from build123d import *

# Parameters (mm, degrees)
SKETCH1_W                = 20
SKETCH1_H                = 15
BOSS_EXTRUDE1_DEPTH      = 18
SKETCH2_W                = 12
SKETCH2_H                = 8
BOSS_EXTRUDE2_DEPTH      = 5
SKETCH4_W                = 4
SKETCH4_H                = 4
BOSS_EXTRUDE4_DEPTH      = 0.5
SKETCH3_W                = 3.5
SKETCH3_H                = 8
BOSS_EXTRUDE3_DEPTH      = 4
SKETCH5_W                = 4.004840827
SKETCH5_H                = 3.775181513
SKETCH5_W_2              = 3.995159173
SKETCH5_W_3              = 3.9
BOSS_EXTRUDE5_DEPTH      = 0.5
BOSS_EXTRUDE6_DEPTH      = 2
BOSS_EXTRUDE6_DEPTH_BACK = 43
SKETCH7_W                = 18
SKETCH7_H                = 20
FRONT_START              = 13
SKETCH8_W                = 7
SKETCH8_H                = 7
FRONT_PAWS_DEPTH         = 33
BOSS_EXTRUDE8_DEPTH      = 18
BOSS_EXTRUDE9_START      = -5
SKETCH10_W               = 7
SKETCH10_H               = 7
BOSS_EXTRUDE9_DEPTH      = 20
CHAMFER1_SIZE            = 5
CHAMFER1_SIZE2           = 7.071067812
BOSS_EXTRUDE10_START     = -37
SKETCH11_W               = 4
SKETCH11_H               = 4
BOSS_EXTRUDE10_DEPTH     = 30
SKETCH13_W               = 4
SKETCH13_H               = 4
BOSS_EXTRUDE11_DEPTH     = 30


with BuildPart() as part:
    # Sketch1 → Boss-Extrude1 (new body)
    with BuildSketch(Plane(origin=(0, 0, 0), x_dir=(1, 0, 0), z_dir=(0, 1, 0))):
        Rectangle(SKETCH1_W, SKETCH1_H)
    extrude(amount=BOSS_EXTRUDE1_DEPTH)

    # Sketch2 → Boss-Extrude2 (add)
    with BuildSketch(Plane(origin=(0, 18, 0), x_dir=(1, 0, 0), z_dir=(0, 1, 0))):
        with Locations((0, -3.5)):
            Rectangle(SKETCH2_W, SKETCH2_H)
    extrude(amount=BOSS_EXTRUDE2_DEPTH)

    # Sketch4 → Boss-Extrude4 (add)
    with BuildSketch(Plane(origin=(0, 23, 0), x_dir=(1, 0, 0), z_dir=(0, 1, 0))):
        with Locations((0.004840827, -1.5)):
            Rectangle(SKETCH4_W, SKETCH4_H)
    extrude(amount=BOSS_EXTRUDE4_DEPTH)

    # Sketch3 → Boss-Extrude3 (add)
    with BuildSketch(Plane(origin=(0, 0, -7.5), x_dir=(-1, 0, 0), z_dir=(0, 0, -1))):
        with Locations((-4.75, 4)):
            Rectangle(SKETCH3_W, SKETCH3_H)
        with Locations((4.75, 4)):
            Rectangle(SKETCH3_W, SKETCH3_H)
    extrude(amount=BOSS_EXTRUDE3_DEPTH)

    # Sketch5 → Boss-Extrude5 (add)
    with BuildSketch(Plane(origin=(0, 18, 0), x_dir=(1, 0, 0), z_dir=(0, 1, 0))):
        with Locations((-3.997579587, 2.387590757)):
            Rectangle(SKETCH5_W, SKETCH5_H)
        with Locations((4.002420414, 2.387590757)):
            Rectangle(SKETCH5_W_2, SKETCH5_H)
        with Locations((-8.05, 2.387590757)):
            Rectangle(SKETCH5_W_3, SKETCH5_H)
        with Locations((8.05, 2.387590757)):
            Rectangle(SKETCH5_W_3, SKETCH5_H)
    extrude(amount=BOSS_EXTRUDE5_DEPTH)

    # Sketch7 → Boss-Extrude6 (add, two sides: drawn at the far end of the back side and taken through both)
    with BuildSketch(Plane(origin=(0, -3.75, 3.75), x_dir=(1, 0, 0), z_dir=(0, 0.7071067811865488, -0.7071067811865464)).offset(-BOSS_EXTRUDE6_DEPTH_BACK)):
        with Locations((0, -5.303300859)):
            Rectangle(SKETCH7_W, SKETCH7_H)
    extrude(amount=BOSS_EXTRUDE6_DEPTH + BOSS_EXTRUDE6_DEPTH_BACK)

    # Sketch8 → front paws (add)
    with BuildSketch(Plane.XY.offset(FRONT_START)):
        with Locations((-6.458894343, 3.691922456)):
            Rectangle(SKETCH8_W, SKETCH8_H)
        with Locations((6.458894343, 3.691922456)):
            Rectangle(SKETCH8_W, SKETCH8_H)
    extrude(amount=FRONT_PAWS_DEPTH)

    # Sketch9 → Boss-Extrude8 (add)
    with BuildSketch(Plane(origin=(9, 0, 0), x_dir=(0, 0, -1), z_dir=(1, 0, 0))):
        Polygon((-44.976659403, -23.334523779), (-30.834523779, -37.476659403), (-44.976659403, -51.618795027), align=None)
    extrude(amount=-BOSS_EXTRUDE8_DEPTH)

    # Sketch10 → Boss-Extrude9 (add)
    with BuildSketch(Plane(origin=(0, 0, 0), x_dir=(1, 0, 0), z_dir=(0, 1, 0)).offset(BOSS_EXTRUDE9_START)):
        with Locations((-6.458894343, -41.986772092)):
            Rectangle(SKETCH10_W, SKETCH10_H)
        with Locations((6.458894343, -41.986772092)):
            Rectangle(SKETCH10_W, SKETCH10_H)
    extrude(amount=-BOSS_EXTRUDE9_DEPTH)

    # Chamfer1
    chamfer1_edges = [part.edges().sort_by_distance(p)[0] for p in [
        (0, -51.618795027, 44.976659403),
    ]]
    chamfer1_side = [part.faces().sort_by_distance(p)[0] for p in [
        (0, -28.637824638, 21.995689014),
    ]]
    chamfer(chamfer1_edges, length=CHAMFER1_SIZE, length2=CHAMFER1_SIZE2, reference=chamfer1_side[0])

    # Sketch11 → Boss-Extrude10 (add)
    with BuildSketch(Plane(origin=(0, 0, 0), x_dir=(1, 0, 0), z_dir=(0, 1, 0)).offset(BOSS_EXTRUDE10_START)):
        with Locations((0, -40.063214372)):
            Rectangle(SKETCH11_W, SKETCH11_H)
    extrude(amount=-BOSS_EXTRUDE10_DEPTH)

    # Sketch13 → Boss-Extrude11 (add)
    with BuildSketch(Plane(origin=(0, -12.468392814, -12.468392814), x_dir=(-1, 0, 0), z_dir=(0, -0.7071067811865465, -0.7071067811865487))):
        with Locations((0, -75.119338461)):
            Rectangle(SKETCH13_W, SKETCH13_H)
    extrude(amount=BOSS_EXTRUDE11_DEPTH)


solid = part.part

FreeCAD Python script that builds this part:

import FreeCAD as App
import Part
import Sketcher
from FreeCAD import Vector


def edges_at(feature, points):
    """Names of the edges that pass closest to the given points."""
    edges = feature.Shape.Edges
    near = lambda p: min(range(len(edges)), key=lambda i: edges[i].distToShape(Part.Vertex(*p))[0])
    return sorted({f"Edge{near(p) + 1}" for p in points})

doc = App.newDocument("Part")
body = doc.addObject("PartDesign::Body", "Body")

# Sketch on XZ plane
sketch1 = body.newObject("Sketcher::SketchObject", "Sketch")
sketch1.AttachmentSupport = (doc.getObject("XZ_Plane"), [""])
sketch1.MapMode = "FlatFace"
sketch1.addGeometry([
    Part.LineSegment(Vector(-10, -7.5, 0), Vector(-10, 7.5, 0)),
    Part.LineSegment(Vector(-10, 7.5, 0), Vector(10, 7.5, 0)),
    Part.LineSegment(Vector(10, 7.5, 0), Vector(10, -7.5, 0)),
    Part.LineSegment(Vector(10, -7.5, 0), Vector(-10, -7.5, 0)),
], False)
sketch1.addConstraint([
    Sketcher.Constraint("Coincident", 0, 2, 1, 1),
    Sketcher.Constraint("Coincident", 1, 2, 2, 1),
    Sketcher.Constraint("Coincident", 2, 2, 3, 1),
    Sketcher.Constraint("Coincident", 3, 2, 0, 1),
    Sketcher.Constraint("Vertical", 0),
    Sketcher.Constraint("Horizontal", 1),
    Sketcher.Constraint("Vertical", 2),
    Sketcher.Constraint("Horizontal", 3),
    Sketcher.Constraint("Symmetric", 0, 2, 2, 2, -1, 1),
    Sketcher.Constraint("DistanceX", 1, 1, 1, 2, 20.0),
    Sketcher.Constraint("DistanceY", 0, 1, 0, 2, 15.0),
])
pad1 = body.newObject("PartDesign::Pad", "Pad")
pad1.Profile = sketch1
pad1.Length = 18
pad1.Reversed = True

# Sketch on XZ plane
sketch2 = body.newObject("Sketcher::SketchObject", "Sketch001")
sketch2.AttachmentSupport = (doc.getObject("XZ_Plane"), [""])
sketch2.MapMode = "FlatFace"
sketch2.AttachmentOffset = App.Placement(Vector(0, 0, -18), App.Rotation())
sketch2.addGeometry([
    Part.LineSegment(Vector(-6, -0.5, 0), Vector(-6, 7.5, 0)),
    Part.LineSegment(Vector(-6, 7.5, 0), Vector(6, 7.5, 0)),
    Part.LineSegment(Vector(6, 7.5, 0), Vector(6, -0.5, 0)),
    Part.LineSegment(Vector(6, -0.5, 0), Vector(-6, -0.5, 0)),
], False)
sketch2.addConstraint([
    Sketcher.Constraint("Coincident", 0, 2, 1, 1),
    Sketcher.Constraint("Coincident", 1, 2, 2, 1),
    Sketcher.Constraint("Coincident", 2, 2, 3, 1),
    Sketcher.Constraint("Coincident", 3, 2, 0, 1),
    Sketcher.Constraint("Vertical", 0),
    Sketcher.Constraint("Horizontal", 1),
    Sketcher.Constraint("Vertical", 2),
    Sketcher.Constraint("Horizontal", 3),
    Sketcher.Constraint("DistanceX", 1, 1, 1, 2, 12.0),
    Sketcher.Constraint("DistanceY", 0, 1, 0, 2, 8.0),
    Sketcher.Constraint("DistanceX", 0, 2, -1, 1, 6.0),
    Sketcher.Constraint("DistanceY", -1, 1, 0, 2, 7.5),
])
pad2 = body.newObject("PartDesign::Pad", "Pad001")
pad2.Profile = sketch2
pad2.Length = 5
pad2.Reversed = True

# Sketch on XZ plane
sketch3 = body.newObject("Sketcher::SketchObject", "Sketch002")
sketch3.AttachmentSupport = (doc.getObject("XZ_Plane"), [""])
sketch3.MapMode = "FlatFace"
sketch3.AttachmentOffset = App.Placement(Vector(0, 0, -23), App.Rotation())
sketch3.addGeometry([
    Part.LineSegment(Vector(-1.995159, -0.5, 0), Vector(-1.995159, 3.5, 0)),
    Part.LineSegment(Vector(-1.995159, 3.5, 0), Vector(2.004841, 3.5, 0)),
    Part.LineSegment(Vector(2.004841, 3.5, 0), Vector(2.004841, -0.5, 0)),
    Part.LineSegment(Vector(2.004841, -0.5, 0), Vector(-1.995159, -0.5, 0)),
], False)
sketch3.addConstraint([
    Sketcher.Constraint("Coincident", 0, 2, 1, 1),
    Sketcher.Constraint("Coincident", 1, 2, 2, 1),
    Sketcher.Constraint("Coincident", 2, 2, 3, 1),
    Sketcher.Constraint("Coincident", 3, 2, 0, 1),
    Sketcher.Constraint("Vertical", 0),
    Sketcher.Constraint("Horizontal", 1),
    Sketcher.Constraint("Vertical", 2),
    Sketcher.Constraint("Horizontal", 3),
    Sketcher.Constraint("Equal", 3, 0),
    Sketcher.Constraint("DistanceX", 1, 1, 1, 2, 4.0),
    Sketcher.Constraint("DistanceY", -1, 1, 0, 2, 3.5),
    Sketcher.Constraint("DistanceX", 0, 2, -1, 1, 1.995159),
])
pad3 = body.newObject("PartDesign::Pad", "Pad002")
pad3.Profile = sketch3
pad3.Length = 0.5
pad3.Reversed = True

# Sketch on XY plane
sketch4 = body.newObject("Sketcher::SketchObject", "Sketch003")
sketch4.AttachmentSupport = (doc.getObject("XY_Plane"), [""])
sketch4.MapMode = "FlatFace"
sketch4.AttachmentOffset = App.Placement(Vector(0, 0, -7.5), App.Rotation())
sketch4.addGeometry([
    Part.LineSegment(Vector(6.5, 8, 0), Vector(6.5, 0, 0)),  # 0
    Part.LineSegment(Vector(6.5, 0, 0), Vector(3, 0, 0)),  # 1
    Part.LineSegment(Vector(3, 0, 0), Vector(3, 8, 0)),  # 2
    Part.LineSegment(Vector(3, 8, 0), Vector(6.5, 8, 0)),  # 3
    Part.LineSegment(Vector(-3, 8, 0), Vector(-3, 0, 0)),  # 4
    Part.LineSegment(Vector(-3, 0, 0), Vector(-6.5, 0, 0)),  # 5
    Part.LineSegment(Vector(-6.5, 0, 0), Vector(-6.5, 8, 0)),  # 6
    Part.LineSegment(Vector(-6.5, 8, 0), Vector(-3, 8, 0)),  # 7
], False)
sketch4.addConstraint([
    Sketcher.Constraint("Coincident", 0, 2, 1, 1),
    Sketcher.Constraint("Coincident", 1, 2, 2, 1),
    Sketcher.Constraint("Coincident", 2, 2, 3, 1),
    Sketcher.Constraint("Coincident", 3, 2, 0, 1),
    Sketcher.Constraint("Coincident", 4, 2, 5, 1),
    Sketcher.Constraint("Coincident", 5, 2, 6, 1),
    Sketcher.Constraint("Coincident", 6, 2, 7, 1),
    Sketcher.Constraint("Coincident", 7, 2, 4, 1),
    Sketcher.Constraint("Vertical", 0),
    Sketcher.Constraint("Horizontal", 1),
    Sketcher.Constraint("Vertical", 2),
    Sketcher.Constraint("Horizontal", 3),
    Sketcher.Constraint("Vertical", 4),
    Sketcher.Constraint("Horizontal", 5),
    Sketcher.Constraint("Vertical", 6),
    Sketcher.Constraint("Horizontal", 7),
    Sketcher.Constraint("Symmetric", 1, 2, 4, 2, -1, 1),
    Sketcher.Constraint("Symmetric", 0, 2, 5, 2, -2),
    Sketcher.Constraint("Horizontal", 3, 2, 6, 2),
    Sketcher.Constraint("DistanceY", 0, 2, 0, 1, 8.0),
    Sketcher.Constraint("DistanceX", 1, 2, 1, 1, 3.5),
    Sketcher.Constraint("DistanceX", -1, 1, 1, 2, 3.0),
])
pad4 = body.newObject("PartDesign::Pad", "Pad003")
pad4.Profile = sketch4
pad4.Length = 4
pad4.Reversed = True

# Sketch on XZ plane
sketch5 = body.newObject("Sketcher::SketchObject", "Sketch004")
sketch5.AttachmentSupport = (doc.getObject("XZ_Plane"), [""])
sketch5.MapMode = "FlatFace"
sketch5.AttachmentOffset = App.Placement(Vector(0, 0, -18), App.Rotation())
sketch5.addGeometry([
    Part.LineSegment(Vector(-6, -4.275182, 0), Vector(-6, -0.5, 0)),  # 0
    Part.LineSegment(Vector(-6, -0.5, 0), Vector(-1.995159, -0.5, 0)),  # 1
    Part.LineSegment(Vector(-1.995159, -0.5, 0), Vector(-1.995159, -4.275182, 0)),  # 2
    Part.LineSegment(Vector(-1.995159, -4.275182, 0), Vector(-6, -4.275182, 0)),  # 3
    Part.LineSegment(Vector(2.004841, -4.275182, 0), Vector(2.004841, -0.5, 0)),  # 4
    Part.LineSegment(Vector(2.004841, -0.5, 0), Vector(6, -0.5, 0)),  # 5
    Part.LineSegment(Vector(6, -0.5, 0), Vector(6, -4.275182, 0)),  # 6
    Part.LineSegment(Vector(6, -4.275182, 0), Vector(2.004841, -4.275182, 0)),  # 7
    Part.LineSegment(Vector(-10, -4.275182, 0), Vector(-10, -0.5, 0)),  # 8
    Part.LineSegment(Vector(-10, -0.5, 0), Vector(-6.1, -0.5, 0)),  # 9
    Part.LineSegment(Vector(-6.1, -0.5, 0), Vector(-6.1, -4.275182, 0)),  # 10
    Part.LineSegment(Vector(-6.1, -4.275182, 0), Vector(-10, -4.275182, 0)),  # 11
    Part.LineSegment(Vector(6.1, -4.275182, 0), Vector(6.1, -0.5, 0)),  # 12
    Part.LineSegment(Vector(6.1, -0.5, 0), Vector(10, -0.5, 0)),  # 13
    Part.LineSegment(Vector(10, -0.5, 0), Vector(10, -4.275182, 0)),  # 14
    Part.LineSegment(Vector(10, -4.275182, 0), Vector(6.1, -4.275182, 0)),  # 15
], False)
sketch5.addConstraint([
    Sketcher.Constraint("Coincident", 0, 2, 1, 1),
    Sketcher.Constraint("Coincident", 1, 2, 2, 1),
    Sketcher.Constraint("Coincident", 2, 2, 3, 1),
    Sketcher.Constraint("Coincident", 3, 2, 0, 1),
    Sketcher.Constraint("Coincident", 4, 2, 5, 1),
    Sketcher.Constraint("Coincident", 5, 2, 6, 1),
    Sketcher.Constraint("Coincident", 6, 2, 7, 1),
    Sketcher.Constraint("Coincident", 7, 2, 4, 1),
    Sketcher.Constraint("Coincident", 8, 2, 9, 1),
    Sketcher.Constraint("Coincident", 9, 2, 10, 1),
    Sketcher.Constraint("Coincident", 10, 2, 11, 1),
    Sketcher.Constraint("Coincident", 11, 2, 8, 1),
    Sketcher.Constraint("Coincident", 12, 2, 13, 1),
    Sketcher.Constraint("Coincident", 13, 2, 14, 1),
    Sketcher.Constraint("Coincident", 14, 2, 15, 1),
    Sketcher.Constraint("Coincident", 15, 2, 12, 1),
    Sketcher.Constraint("Vertical", 0),
    Sketcher.Constraint("Horizontal", 1),
    Sketcher.Constraint("Vertical", 2),
    Sketcher.Constraint("Horizontal", 3),
    Sketcher.Constraint("Vertical", 4),
    Sketcher.Constraint("Horizontal", 5),
    Sketcher.Constraint("Vertical", 6),
    Sketcher.Constraint("Horizontal", 7),
    Sketcher.Constraint("Vertical", 8),
    Sketcher.Constraint("Horizontal", 9),
    Sketcher.Constraint("Vertical", 10),
    Sketcher.Constraint("Horizontal", 11),
    Sketcher.Constraint("Vertical", 12),
    Sketcher.Constraint("Horizontal", 13),
    Sketcher.Constraint("Vertical", 14),
    Sketcher.Constraint("Horizontal", 15),
    Sketcher.Constraint("Symmetric", 0, 2, 5, 2, -2),
    Sketcher.Constraint("Symmetric", 9, 2, 12, 2, -2),
    Sketcher.Constraint("Symmetric", 11, 2, 14, 2, -2),
    Sketcher.Constraint("Horizontal", 3, 2, 6, 2),
    Sketcher.Constraint("Horizontal", 5, 2, 8, 2),
    Sketcher.Constraint("Horizontal", 7, 2, 10, 2),
    Sketcher.Constraint("DistanceX", 9, 1, 9, 2, 3.9),
    Sketcher.Constraint("DistanceX", 0, 2, -1, 1, 6.0),
    Sketcher.Constraint("DistanceX", 8, 2, -1, 1, 10.0),
    Sketcher.Constraint("DistanceX", 1, 2, 4, 2, 4.0),
    Sketcher.Constraint("DistanceY", 0, 2, -1, 1, 0.5),
    Sketcher.Constraint("DistanceX", 1, 1, 1, 2, 4.004841),
    Sketcher.Constraint("DistanceY", 0, 1, 0, 2, 3.775182),
])
pad5 = body.newObject("PartDesign::Pad", "Pad004")
pad5.Profile = sketch5
pad5.Length = 0.5
pad5.Reversed = True

# Sketch on an angled plane
sketch6 = body.newObject("Sketcher::SketchObject", "Sketch005")
sketch6.Placement = App.Placement(Vector(0, -3.75, 3.75), App.Rotation(Vector(1, 0, 0), Vector(0, -0.707106781, -0.707106781), Vector(0, 0.707106781, -0.707106781), "ZXY"))
sketch6.addGeometry([
    Part.LineSegment(Vector(-9, 4.696699, 0), Vector(-9, -15.303301, 0)),
    Part.LineSegment(Vector(-9, -15.303301, 0), Vector(9, -15.303301, 0)),
    Part.LineSegment(Vector(9, -15.303301, 0), Vector(9, 4.696699, 0)),
    Part.LineSegment(Vector(9, 4.696699, 0), Vector(-9, 4.696699, 0)),
], False)
sketch6.addConstraint([
    Sketcher.Constraint("Coincident", 0, 2, 1, 1),
    Sketcher.Constraint("Coincident", 1, 2, 2, 1),
    Sketcher.Constraint("Coincident", 2, 2, 3, 1),
    Sketcher.Constraint("Coincident", 3, 2, 0, 1),
    Sketcher.Constraint("Vertical", 0),
    Sketcher.Constraint("Horizontal", 1),
    Sketcher.Constraint("Vertical", 2),
    Sketcher.Constraint("Horizontal", 3),
    Sketcher.Constraint("DistanceX", 1, 1, 1, 2, 18.0),
    Sketcher.Constraint("DistanceY", 0, 2, 0, 1, 20.0),
    Sketcher.Constraint("DistanceX", 0, 2, -1, 1, 9.0),
    Sketcher.Constraint("DistanceY", 0, 2, -1, 1, 15.303301),
])
pad6 = body.newObject("PartDesign::Pad", "Pad005")
pad6.Profile = sketch6
pad6.Type = "TwoLengths"
pad6.Length = 2
pad6.Length2 = 43

# Sketch on XY plane
sketch7 = body.newObject("Sketcher::SketchObject", "Sketch006")
sketch7.AttachmentSupport = (doc.getObject("XY_Plane"), [""])
sketch7.MapMode = "FlatFace"
sketch7.AttachmentOffset = App.Placement(Vector(0, 0, 13), App.Rotation())
sketch7.addGeometry([
    Part.LineSegment(Vector(-9.958894, 7.191922, 0), Vector(-9.958894, 0.191922, 0)),  # 0
    Part.LineSegment(Vector(-9.958894, 0.191922, 0), Vector(-2.958894, 0.191922, 0)),  # 1
    Part.LineSegment(Vector(-2.958894, 0.191922, 0), Vector(-2.958894, 7.191922, 0)),  # 2
    Part.LineSegment(Vector(-2.958894, 7.191922, 0), Vector(-9.958894, 7.191922, 0)),  # 3
    Part.LineSegment(Vector(2.958894, 7.191922, 0), Vector(2.958894, 0.191922, 0)),  # 4
    Part.LineSegment(Vector(2.958894, 0.191922, 0), Vector(9.958894, 0.191922, 0)),  # 5
    Part.LineSegment(Vector(9.958894, 0.191922, 0), Vector(9.958894, 7.191922, 0)),  # 6
    Part.LineSegment(Vector(9.958894, 7.191922, 0), Vector(2.958894, 7.191922, 0)),  # 7
], False)
sketch7.addConstraint([
    Sketcher.Constraint("Coincident", 0, 2, 1, 1),
    Sketcher.Constraint("Coincident", 1, 2, 2, 1),
    Sketcher.Constraint("Coincident", 2, 2, 3, 1),
    Sketcher.Constraint("Coincident", 3, 2, 0, 1),
    Sketcher.Constraint("Coincident", 4, 2, 5, 1),
    Sketcher.Constraint("Coincident", 5, 2, 6, 1),
    Sketcher.Constraint("Coincident", 6, 2, 7, 1),
    Sketcher.Constraint("Coincident", 7, 2, 4, 1),
    Sketcher.Constraint("Vertical", 0),
    Sketcher.Constraint("Horizontal", 1),
    Sketcher.Constraint("Vertical", 2),
    Sketcher.Constraint("Horizontal", 3),
    Sketcher.Constraint("Vertical", 4),
    Sketcher.Constraint("Horizontal", 5),
    Sketcher.Constraint("Vertical", 6),
    Sketcher.Constraint("Horizontal", 7),
    Sketcher.Constraint("Symmetric", 1, 2, 4, 2, -2),
    Sketcher.Constraint("Symmetric", 3, 2, 6, 2, -2),
    Sketcher.Constraint("Equal", 7, 0),
    Sketcher.Constraint("DistanceX", 1, 1, 1, 2, 7.0),
    Sketcher.Constraint("DistanceX", 1, 2, 4, 2, 5.917789),
    Sketcher.Constraint("DistanceY", -1, 1, 0, 2, 0.191922),
])
pad7 = body.newObject("PartDesign::Pad", "Pad006")
pad7.Profile = sketch7
pad7.Length = 33

# Sketch on YZ plane
sketch8 = body.newObject("Sketcher::SketchObject", "Sketch007")
sketch8.AttachmentSupport = (doc.getObject("YZ_Plane"), [""])
sketch8.MapMode = "FlatFace"
sketch8.AttachmentOffset = App.Placement(Vector(0, 0, 9), App.Rotation())
sketch8.addGeometry([
    Part.LineSegment(Vector(-37.476659, 30.834524, 0), Vector(-23.334524, 44.976659, 0)),
    Part.LineSegment(Vector(-23.334524, 44.976659, 0), Vector(-51.618795, 44.976659, 0)),
    Part.LineSegment(Vector(-51.618795, 44.976659, 0), Vector(-37.476659, 30.834524, 0)),
], False)
sketch8.addConstraint([
    Sketcher.Constraint("Coincident", 0, 2, 1, 1),
    Sketcher.Constraint("Coincident", 1, 2, 2, 1),
    Sketcher.Constraint("Coincident", 2, 2, 0, 1),
    Sketcher.Constraint("Horizontal", 1),
    Sketcher.Constraint("Perpendicular", 0, 2),
    Sketcher.Constraint("Equal", 0, 2),
    Sketcher.Constraint("Distance", 0, 20.0),
    Sketcher.Constraint("DistanceY", -1, 1, 0, 2, 44.976659),
    Sketcher.Constraint("DistanceX", 2, 2, -1, 1, 37.476659),
])
pad8 = body.newObject("PartDesign::Pad", "Pad007")
pad8.Profile = sketch8
pad8.Length = 18
pad8.Reversed = True

# Sketch on XZ plane
sketch9 = body.newObject("Sketcher::SketchObject", "Sketch008")
sketch9.AttachmentSupport = (doc.getObject("XZ_Plane"), [""])
sketch9.MapMode = "FlatFace"
sketch9.AttachmentOffset = App.Placement(Vector(0, 0, 5), App.Rotation())
sketch9.addGeometry([
    Part.LineSegment(Vector(-9.958894, 38.486772, 0), Vector(-9.958894, 45.486772, 0)),  # 0
    Part.LineSegment(Vector(-9.958894, 45.486772, 0), Vector(-2.958894, 45.486772, 0)),  # 1
    Part.LineSegment(Vector(-2.958894, 45.486772, 0), Vector(-2.958894, 38.486772, 0)),  # 2
    Part.LineSegment(Vector(-2.958894, 38.486772, 0), Vector(-9.958894, 38.486772, 0)),  # 3
    Part.LineSegment(Vector(2.958894, 38.486772, 0), Vector(2.958894, 45.486772, 0)),  # 4
    Part.LineSegment(Vector(2.958894, 45.486772, 0), Vector(9.958894, 45.486772, 0)),  # 5
    Part.LineSegment(Vector(9.958894, 45.486772, 0), Vector(9.958894, 38.486772, 0)),  # 6
    Part.LineSegment(Vector(9.958894, 38.486772, 0), Vector(2.958894, 38.486772, 0)),  # 7
], False)
sketch9.addConstraint([
    Sketcher.Constraint("Coincident", 0, 2, 1, 1),
    Sketcher.Constraint("Coincident", 1, 2, 2, 1),
    Sketcher.Constraint("Coincident", 2, 2, 3, 1),
    Sketcher.Constraint("Coincident", 3, 2, 0, 1),
    Sketcher.Constraint("Coincident", 4, 2, 5, 1),
    Sketcher.Constraint("Coincident", 5, 2, 6, 1),
    Sketcher.Constraint("Coincident", 6, 2, 7, 1),
    Sketcher.Constraint("Coincident", 7, 2, 4, 1),
    Sketcher.Constraint("Vertical", 0),
    Sketcher.Constraint("Horizontal", 1),
    Sketcher.Constraint("Vertical", 2),
    Sketcher.Constraint("Horizontal", 3),
    Sketcher.Constraint("Vertical", 4),
    Sketcher.Constraint("Horizontal", 5),
    Sketcher.Constraint("Vertical", 6),
    Sketcher.Constraint("Horizontal", 7),
    Sketcher.Constraint("Symmetric", 1, 2, 4, 2, -2),
    Sketcher.Constraint("Symmetric", 3, 2, 6, 2, -2),
    Sketcher.Constraint("Equal", 7, 0),
    Sketcher.Constraint("DistanceX", 1, 1, 1, 2, 7.0),
    Sketcher.Constraint("DistanceX", 1, 2, 4, 2, 5.917789),
    Sketcher.Constraint("DistanceY", -1, 1, 0, 2, 45.486772),
])
pad9 = body.newObject("PartDesign::Pad", "Pad008")
pad9.Profile = sketch9
pad9.Length = 20
doc.recompute()

chamfer = body.newObject("PartDesign::Chamfer", "Chamfer")
chamfer.Base = (pad9, edges_at(pad9, [(0, -51.619, 44.977)]))
chamfer.ChamferType = "Two distances"
chamfer.Size = 5
chamfer.Size2 = 7.071068
chamfer.FlipDirection = True

# Sketch on XZ plane
sketch10 = body.newObject("Sketcher::SketchObject", "Sketch009")
sketch10.AttachmentSupport = (doc.getObject("XZ_Plane"), [""])
sketch10.MapMode = "FlatFace"
sketch10.AttachmentOffset = App.Placement(Vector(0, 0, 37), App.Rotation())
sketch10.addGeometry([
    Part.LineSegment(Vector(-2, 38.063214, 0), Vector(-2, 42.063214, 0)),
    Part.LineSegment(Vector(-2, 42.063214, 0), Vector(2, 42.063214, 0)),
    Part.LineSegment(Vector(2, 42.063214, 0), Vector(2, 38.063214, 0)),
    Part.LineSegment(Vector(2, 38.063214, 0), Vector(-2, 38.063214, 0)),
], False)
sketch10.addConstraint([
    Sketcher.Constraint("Coincident", 0, 2, 1, 1),
    Sketcher.Constraint("Coincident", 1, 2, 2, 1),
    Sketcher.Constraint("Coincident", 2, 2, 3, 1),
    Sketcher.Constraint("Coincident", 3, 2, 0, 1),
    Sketcher.Constraint("Vertical", 0),
    Sketcher.Constraint("Horizontal", 1),
    Sketcher.Constraint("Vertical", 2),
    Sketcher.Constraint("Horizontal", 3),
    Sketcher.Constraint("Equal", 3, 0),
    Sketcher.Constraint("DistanceX", 1, 1, 1, 2, 4.0),
    Sketcher.Constraint("DistanceX", 0, 2, -1, 1, 2.0),
    Sketcher.Constraint("DistanceY", -1, 1, 0, 2, 42.063214),
])
pad10 = body.newObject("PartDesign::Pad", "Pad009")
pad10.Profile = sketch10
pad10.Length = 30

# Sketch on an angled plane
sketch11 = body.newObject("Sketcher::SketchObject", "Sketch010")
sketch11.Placement = App.Placement(Vector(0, -12.468393, -12.468393), App.Rotation(Vector(-1, 0, 0), Vector(0, 0.707106781, -0.707106781), Vector(0, -0.707106781, -0.707106781), "ZXY"))
sketch11.addGeometry([
    Part.LineSegment(Vector(-2, -73.119338, 0), Vector(-2, -77.119338, 0)),
    Part.LineSegment(Vector(-2, -77.119338, 0), Vector(2, -77.119338, 0)),
    Part.LineSegment(Vector(2, -77.119338, 0), Vector(2, -73.119338, 0)),
    Part.LineSegment(Vector(2, -73.119338, 0), Vector(-2, -73.119338, 0)),
], False)
sketch11.addConstraint([
    Sketcher.Constraint("Coincident", 0, 2, 1, 1),
    Sketcher.Constraint("Coincident", 1, 2, 2, 1),
    Sketcher.Constraint("Coincident", 2, 2, 3, 1),
    Sketcher.Constraint("Coincident", 3, 2, 0, 1),
    Sketcher.Constraint("Vertical", 0),
    Sketcher.Constraint("Horizontal", 1),
    Sketcher.Constraint("Vertical", 2),
    Sketcher.Constraint("Horizontal", 3),
    Sketcher.Constraint("Equal", 3, 0),
    Sketcher.Constraint("DistanceX", 1, 1, 1, 2, 4.0),
    Sketcher.Constraint("DistanceX", 0, 2, -1, 1, 2.0),
    Sketcher.Constraint("DistanceY", 0, 2, -1, 1, 77.119338),
])
pad11 = body.newObject("PartDesign::Pad", "Pad010")
pad11.Profile = sketch11
pad11.Length = 30

doc.recompute()
